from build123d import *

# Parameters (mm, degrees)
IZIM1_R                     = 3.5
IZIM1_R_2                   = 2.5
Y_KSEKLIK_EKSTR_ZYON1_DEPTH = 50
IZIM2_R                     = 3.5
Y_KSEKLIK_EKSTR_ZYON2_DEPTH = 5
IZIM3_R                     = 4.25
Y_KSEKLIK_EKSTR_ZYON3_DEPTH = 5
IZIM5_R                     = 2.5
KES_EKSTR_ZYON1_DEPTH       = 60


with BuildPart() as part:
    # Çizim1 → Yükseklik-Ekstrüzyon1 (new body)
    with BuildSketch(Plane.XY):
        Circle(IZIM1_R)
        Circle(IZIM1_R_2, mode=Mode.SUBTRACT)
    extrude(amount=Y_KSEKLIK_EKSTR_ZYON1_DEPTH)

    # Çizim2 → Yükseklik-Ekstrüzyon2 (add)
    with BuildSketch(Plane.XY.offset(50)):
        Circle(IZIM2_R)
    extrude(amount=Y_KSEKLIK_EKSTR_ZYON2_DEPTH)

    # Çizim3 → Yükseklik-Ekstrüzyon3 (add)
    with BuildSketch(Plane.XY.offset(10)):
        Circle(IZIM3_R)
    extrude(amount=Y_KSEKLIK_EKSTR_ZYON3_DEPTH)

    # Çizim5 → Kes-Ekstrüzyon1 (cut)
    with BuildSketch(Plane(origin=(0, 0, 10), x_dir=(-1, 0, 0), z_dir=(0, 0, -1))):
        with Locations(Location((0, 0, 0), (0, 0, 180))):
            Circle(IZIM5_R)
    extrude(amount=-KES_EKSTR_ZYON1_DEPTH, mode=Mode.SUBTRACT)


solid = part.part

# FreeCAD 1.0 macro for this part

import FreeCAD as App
import Part
import Sketcher

V = App.Vector
Q = App.Units.Quantity

doc = App.newDocument("Part")
params = doc.addObject("Spreadsheet::Sheet", "Params")
for row, (alias, value) in enumerate([
    ("sketch1_diameter", "7 mm"),
    ("sketch1_diameter2", "5 mm"),
    ("pad1_length", "50 mm"),
    ("sketch2_diameter", "7 mm"),
    ("pad2_length", "5 mm"),
    ("sketch3_diameter", "8.5 mm"),
    ("pad3_length", "5 mm"),
    ("sketch4_diameter", "5 mm"),
    ("pocket1_length", "60 mm"),
], start=1):
    params.set(f"A{row}", alias)
    params.set(f"B{row}", "=" + value)
    params.setAlias(f"B{row}", alias)

body = doc.addObject("PartDesign::Body", "Body")

# Sketch on XY plane
sketch1 = doc.addObject("Sketcher::SketchObject", "Sketch")
body.addObject(sketch1)
sketch1.AttachmentSupport = (doc.XY_Plane, [""])
sketch1.MapMode = "FlatFace"
sketch1.addGeometry([
    Part.Circle(V(0, 0, 0), V(0, 0, 1), 3.5),
    Part.Circle(V(0, 0, 0), V(0, 0, 1), 2.5),
], False)
sketch1.addConstraint([
    Sketcher.Constraint("Coincident", 0, 3, -1, 1),
    Sketcher.Constraint("Coincident", 1, 3, -1, 1),
    Sketcher.Constraint("Diameter", 0, Q("7 mm")),
    Sketcher.Constraint("Diameter", 1, Q("5 mm")),
])
sketch1.setExpression("Constraints[2]", "Params.sketch1_diameter")
sketch1.setExpression("Constraints[3]", "Params.sketch1_diameter2")
pad1 = doc.addObject("PartDesign::Pad", "Pad")
body.addObject(pad1)
pad1.Profile = sketch1
pad1.setExpression("Length", "Params.pad1_length")

# Sketch on XY plane
sketch2 = doc.addObject("Sketcher::SketchObject", "Sketch001")
body.addObject(sketch2)
sketch2.AttachmentSupport = (doc.XY_Plane, [""])
sketch2.MapMode = "FlatFace"
sketch2.AttachmentOffset = App.Placement(V(0, 0, 50), App.Rotation())
sketch2.addGeometry(Part.Circle(V(0, 0, 0), V(0, 0, 1), 3.5), False)
sketch2.addConstraint([
    Sketcher.Constraint("Coincident", 0, 3, -1, 1),
    Sketcher.Constraint("Diameter", 0, Q("7 mm")),
])
sketch2.setExpression("Constraints[1]", "Params.sketch2_diameter")
pad2 = doc.addObject("PartDesign::Pad", "Pad001")
body.addObject(pad2)
pad2.Profile = sketch2
pad2.setExpression("Length", "Params.pad2_length")

# Sketch on XY plane
sketch3 = doc.addObject("Sketcher::SketchObject", "Sketch002")
body.addObject(sketch3)
sketch3.AttachmentSupport = (doc.XY_Plane, [""])
sketch3.MapMode = "FlatFace"
sketch3.AttachmentOffset = App.Placement(V(0, 0, 10), App.Rotation())
sketch3.addGeometry(Part.Circle(V(0, 0, 0), V(0, 0, 1), 4.2), False)
sketch3.addConstraint([
    Sketcher.Constraint("Coincident", 0, 3, -1, 1),
    Sketcher.Constraint("Diameter", 0, Q("8.5 mm")),
])
sketch3.setExpression("Constraints[1]", "Params.sketch3_diameter")
pad3 = doc.addObject("PartDesign::Pad", "Pad002")
body.addObject(pad3)
pad3.Profile = sketch3
pad3.setExpression("Length", "Params.pad3_length")

# Sketch on XY plane
sketch4 = doc.addObject("Sketcher::SketchObject", "Sketch003")
body.addObject(sketch4)
sketch4.AttachmentSupport = (doc.XY_Plane, [""])
sketch4.MapMode = "FlatFace"
sketch4.AttachmentOffset = App.Placement(V(0, 0, 10), App.Rotation())
sketch4.addGeometry(Part.Circle(V(0, 0, 0), V(0, 0, 1), 2.5), False)
sketch4.addConstraint([
    Sketcher.Constraint("Coincident", 0, 3, -1, 1),
    Sketcher.Constraint("Diameter", 0, Q("5 mm")),
])
sketch4.setExpression("Constraints[1]", "Params.sketch4_diameter")
pocket1 = doc.addObject("PartDesign::Pocket", "Pocket")
body.addObject(pocket1)
pocket1.Profile = sketch4
pocket1.setExpression("Length", "Params.pocket1_length")
pocket1.Reversed = True

doc.recompute()
